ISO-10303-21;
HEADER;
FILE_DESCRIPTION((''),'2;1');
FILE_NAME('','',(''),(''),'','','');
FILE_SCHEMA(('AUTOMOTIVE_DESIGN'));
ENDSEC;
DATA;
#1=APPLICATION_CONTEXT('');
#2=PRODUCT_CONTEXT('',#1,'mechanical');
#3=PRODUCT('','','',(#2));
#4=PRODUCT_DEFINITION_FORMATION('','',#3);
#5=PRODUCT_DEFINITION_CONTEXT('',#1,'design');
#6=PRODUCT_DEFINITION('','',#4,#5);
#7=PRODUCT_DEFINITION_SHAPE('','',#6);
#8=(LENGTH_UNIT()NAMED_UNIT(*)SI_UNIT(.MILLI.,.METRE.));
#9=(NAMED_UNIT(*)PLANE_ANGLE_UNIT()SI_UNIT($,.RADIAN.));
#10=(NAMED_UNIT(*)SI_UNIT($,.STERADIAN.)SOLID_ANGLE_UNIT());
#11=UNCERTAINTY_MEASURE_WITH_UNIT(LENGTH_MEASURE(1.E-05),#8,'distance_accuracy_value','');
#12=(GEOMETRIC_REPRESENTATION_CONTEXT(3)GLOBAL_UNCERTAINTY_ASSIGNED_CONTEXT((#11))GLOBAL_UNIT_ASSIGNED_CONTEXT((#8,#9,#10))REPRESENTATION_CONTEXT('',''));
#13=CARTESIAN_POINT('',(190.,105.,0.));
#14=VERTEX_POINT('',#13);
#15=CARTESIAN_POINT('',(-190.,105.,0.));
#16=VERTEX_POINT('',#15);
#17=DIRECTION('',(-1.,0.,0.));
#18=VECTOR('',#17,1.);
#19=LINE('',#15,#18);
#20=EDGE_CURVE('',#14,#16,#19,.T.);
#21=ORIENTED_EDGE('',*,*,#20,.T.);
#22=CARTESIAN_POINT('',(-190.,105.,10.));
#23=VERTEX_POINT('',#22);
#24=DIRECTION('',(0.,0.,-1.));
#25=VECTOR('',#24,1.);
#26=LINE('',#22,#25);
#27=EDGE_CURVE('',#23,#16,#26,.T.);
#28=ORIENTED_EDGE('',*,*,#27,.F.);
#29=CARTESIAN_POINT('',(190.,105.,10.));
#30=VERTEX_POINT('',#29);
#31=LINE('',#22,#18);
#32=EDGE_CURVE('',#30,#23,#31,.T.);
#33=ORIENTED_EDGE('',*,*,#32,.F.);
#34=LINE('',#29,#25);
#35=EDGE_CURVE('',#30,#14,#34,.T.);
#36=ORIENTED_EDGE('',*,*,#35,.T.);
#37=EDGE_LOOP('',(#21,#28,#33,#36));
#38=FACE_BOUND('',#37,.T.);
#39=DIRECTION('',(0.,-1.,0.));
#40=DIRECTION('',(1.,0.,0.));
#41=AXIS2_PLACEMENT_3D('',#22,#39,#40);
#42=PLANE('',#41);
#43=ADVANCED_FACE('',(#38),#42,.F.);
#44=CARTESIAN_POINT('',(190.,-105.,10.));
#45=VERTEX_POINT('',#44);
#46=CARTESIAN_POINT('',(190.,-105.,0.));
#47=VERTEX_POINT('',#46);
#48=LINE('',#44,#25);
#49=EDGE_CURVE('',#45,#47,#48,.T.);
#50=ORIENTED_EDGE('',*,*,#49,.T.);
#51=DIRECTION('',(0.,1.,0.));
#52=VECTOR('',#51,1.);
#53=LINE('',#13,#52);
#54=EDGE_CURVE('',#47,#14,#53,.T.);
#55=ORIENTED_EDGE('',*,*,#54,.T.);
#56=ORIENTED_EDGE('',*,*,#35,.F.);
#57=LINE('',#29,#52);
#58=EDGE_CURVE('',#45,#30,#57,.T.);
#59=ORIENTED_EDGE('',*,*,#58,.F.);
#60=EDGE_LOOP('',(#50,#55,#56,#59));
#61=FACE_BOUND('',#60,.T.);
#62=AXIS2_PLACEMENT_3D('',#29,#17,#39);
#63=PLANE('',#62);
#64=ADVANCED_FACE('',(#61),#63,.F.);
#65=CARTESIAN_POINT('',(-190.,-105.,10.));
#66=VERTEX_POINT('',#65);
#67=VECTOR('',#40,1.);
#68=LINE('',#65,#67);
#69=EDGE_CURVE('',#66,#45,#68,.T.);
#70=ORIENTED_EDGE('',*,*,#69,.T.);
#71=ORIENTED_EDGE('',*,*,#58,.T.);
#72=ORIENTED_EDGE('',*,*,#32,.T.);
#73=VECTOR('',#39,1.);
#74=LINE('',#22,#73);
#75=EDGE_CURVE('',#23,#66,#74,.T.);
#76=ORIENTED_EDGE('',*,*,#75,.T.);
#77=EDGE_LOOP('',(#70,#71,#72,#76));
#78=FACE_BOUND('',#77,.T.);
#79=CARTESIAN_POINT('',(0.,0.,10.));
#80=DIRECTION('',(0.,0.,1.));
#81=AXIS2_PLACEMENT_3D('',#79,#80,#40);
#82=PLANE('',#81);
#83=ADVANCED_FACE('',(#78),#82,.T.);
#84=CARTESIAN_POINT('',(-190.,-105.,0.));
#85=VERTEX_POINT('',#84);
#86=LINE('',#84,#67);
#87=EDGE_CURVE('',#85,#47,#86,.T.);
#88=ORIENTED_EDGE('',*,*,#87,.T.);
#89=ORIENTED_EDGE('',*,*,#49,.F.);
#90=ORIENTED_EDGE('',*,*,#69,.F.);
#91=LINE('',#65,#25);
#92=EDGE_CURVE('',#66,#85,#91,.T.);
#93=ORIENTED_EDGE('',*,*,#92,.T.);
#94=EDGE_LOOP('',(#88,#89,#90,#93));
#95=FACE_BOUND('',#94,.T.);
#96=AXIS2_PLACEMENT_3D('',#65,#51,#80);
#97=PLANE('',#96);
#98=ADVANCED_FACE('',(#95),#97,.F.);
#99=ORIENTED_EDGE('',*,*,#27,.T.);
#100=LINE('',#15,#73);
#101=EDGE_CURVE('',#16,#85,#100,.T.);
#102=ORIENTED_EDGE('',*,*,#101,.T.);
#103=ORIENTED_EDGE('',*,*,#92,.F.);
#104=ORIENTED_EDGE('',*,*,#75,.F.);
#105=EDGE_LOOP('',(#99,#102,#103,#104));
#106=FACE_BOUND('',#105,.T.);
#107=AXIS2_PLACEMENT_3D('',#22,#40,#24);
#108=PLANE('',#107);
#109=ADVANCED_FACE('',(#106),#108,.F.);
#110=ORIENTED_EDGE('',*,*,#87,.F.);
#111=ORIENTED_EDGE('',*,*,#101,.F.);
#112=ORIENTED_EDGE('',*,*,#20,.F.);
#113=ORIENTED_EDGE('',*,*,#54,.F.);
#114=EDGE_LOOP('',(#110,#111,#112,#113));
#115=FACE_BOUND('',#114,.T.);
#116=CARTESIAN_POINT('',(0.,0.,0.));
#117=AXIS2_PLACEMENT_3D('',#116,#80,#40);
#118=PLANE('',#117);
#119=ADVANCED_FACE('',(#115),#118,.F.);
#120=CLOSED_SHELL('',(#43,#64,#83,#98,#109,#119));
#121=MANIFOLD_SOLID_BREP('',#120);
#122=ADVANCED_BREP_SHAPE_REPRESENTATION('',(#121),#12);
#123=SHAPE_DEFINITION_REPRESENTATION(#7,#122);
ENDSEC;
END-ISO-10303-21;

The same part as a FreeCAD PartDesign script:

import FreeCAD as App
import Part
import Sketcher


def add_polygon(sketch, points):
    """Adds a closed chain of lines whose ends are joined by coincident constraints."""
    first, n = sketch.GeometryCount, len(points)
    for a, b in zip(points, points[1:] + points[:1]):
        sketch.addGeometry(Part.LineSegment(App.Vector(*a, 0), App.Vector(*b, 0)), False)
    for i in range(n):
        sketch.addConstraint(Sketcher.Constraint("Coincident", first + i, 2, first + (i + 1) % n, 1))

doc = App.newDocument("Part")
body = doc.addObject("PartDesign::Body", "Body")

sketch1 = body.newObject("Sketcher::SketchObject", "Sketch")
sketch1.AttachmentSupport = (doc.getObject("XY_Plane"), [""])
sketch1.MapMode = "FlatFace"
add_polygon(sketch1, [(-190, 105), (-190, -105), (190, -105), (190, 105)])
sketch1.addConstraint(Sketcher.Constraint("Vertical", 0))
sketch1.addConstraint(Sketcher.Constraint("Horizontal", 1))
sketch1.addConstraint(Sketcher.Constraint("Vertical", 2))
sketch1.addConstraint(Sketcher.Constraint("Horizontal", 3))
sketch1.addConstraint(Sketcher.Constraint("Symmetric", 0, 2, 2, 2, -1, 1))
sketch1.addConstraint(Sketcher.Constraint("DistanceX", 1, 1, 1, 2, 380.0))
sketch1.addConstraint(Sketcher.Constraint("DistanceY", 0, 2, 0, 1, 210.0))
pad1 = body.newObject("PartDesign::Pad", "Pad")
pad1.Profile = sketch1
pad1.Length = 10

doc.recompute()
